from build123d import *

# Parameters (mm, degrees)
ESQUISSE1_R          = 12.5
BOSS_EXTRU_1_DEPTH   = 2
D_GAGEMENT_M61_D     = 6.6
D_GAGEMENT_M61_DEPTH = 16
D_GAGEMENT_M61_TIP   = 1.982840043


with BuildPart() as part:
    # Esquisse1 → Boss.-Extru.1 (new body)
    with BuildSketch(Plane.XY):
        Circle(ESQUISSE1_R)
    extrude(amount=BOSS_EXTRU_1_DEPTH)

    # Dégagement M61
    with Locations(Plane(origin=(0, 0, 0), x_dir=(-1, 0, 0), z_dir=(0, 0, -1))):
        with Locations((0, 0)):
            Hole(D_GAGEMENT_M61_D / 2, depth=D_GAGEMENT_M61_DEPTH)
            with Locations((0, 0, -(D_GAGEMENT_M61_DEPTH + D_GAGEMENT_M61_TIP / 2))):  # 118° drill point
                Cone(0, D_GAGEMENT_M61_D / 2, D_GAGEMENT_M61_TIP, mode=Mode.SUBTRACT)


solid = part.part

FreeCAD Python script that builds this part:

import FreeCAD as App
import Part
import Sketcher

V = App.Vector

doc = App.newDocument("Part")
params = doc.addObject("Spreadsheet::Sheet", "Params")
for row, (alias, value) in enumerate([
    ("sketch1_diameter", "25 mm"),
    ("pad1_length", "2 mm"),
    ("sketch2_diameter", "6.6 mm"),
    ("hole_diameter", "6.6 mm"),
    ("hole_depth", "16 mm"),
], start=1):
    params.set(f"A{row}", alias)
    params.set(f"B{row}", "=" + value)
    params.setAlias(f"B{row}", alias)

body = doc.addObject("PartDesign::Body", "Body")

sketch1 = body.newObject("Sketcher::SketchObject", "Sketch")
sketch1.AttachmentSupport = (doc.getObject("XY_Plane"), [""])
sketch1.MapMode = "FlatFace"
sketch1.addGeometry(Part.Circle(V(0, 0, 0), V(0, 0, 1), 12), False)
sketch1.addConstraint([
    Sketcher.Constraint("Coincident", 0, 3, -1, 1),
    Sketcher.Constraint("Diameter", 0, 25.0),
])
sketch1.setExpression("Constraints[1]", "Params.sketch1_diameter")
pad1 = body.newObject("PartDesign::Pad", "Pad")
pad1.Profile = sketch1
pad1.setExpression("Length", "Params.pad1_length")

sketch2 = body.newObject("Sketcher::SketchObject", "Sketch001")
sketch2.AttachmentSupport = (doc.getObject("XY_Plane"), [""])
sketch2.MapMode = "FlatFace"
sketch2.addGeometry(Part.Circle(V(0, 0, 0), V(0, 0, 1), 3.3), False)
sketch2.addConstraint([
    Sketcher.Constraint("Coincident", 0, 3, -1, 1),
    Sketcher.Constraint("Diameter", 0, 6.6),
])
sketch2.setExpression("Constraints[1]", "Params.sketch2_diameter")
doc.recompute()
hole = body.newObject("PartDesign::Hole", "Hole")
hole.Profile = sketch2
hole.ThreadType = "None"
hole.setExpression("Diameter", "Params.hole_diameter")
hole.DepthType = "Dimension"
hole.setExpression("Depth", "Params.hole_depth")
hole.DrillPoint = "Angled"
hole.DrillPointAngle = 118
hole.Reversed = True

doc.recompute()
